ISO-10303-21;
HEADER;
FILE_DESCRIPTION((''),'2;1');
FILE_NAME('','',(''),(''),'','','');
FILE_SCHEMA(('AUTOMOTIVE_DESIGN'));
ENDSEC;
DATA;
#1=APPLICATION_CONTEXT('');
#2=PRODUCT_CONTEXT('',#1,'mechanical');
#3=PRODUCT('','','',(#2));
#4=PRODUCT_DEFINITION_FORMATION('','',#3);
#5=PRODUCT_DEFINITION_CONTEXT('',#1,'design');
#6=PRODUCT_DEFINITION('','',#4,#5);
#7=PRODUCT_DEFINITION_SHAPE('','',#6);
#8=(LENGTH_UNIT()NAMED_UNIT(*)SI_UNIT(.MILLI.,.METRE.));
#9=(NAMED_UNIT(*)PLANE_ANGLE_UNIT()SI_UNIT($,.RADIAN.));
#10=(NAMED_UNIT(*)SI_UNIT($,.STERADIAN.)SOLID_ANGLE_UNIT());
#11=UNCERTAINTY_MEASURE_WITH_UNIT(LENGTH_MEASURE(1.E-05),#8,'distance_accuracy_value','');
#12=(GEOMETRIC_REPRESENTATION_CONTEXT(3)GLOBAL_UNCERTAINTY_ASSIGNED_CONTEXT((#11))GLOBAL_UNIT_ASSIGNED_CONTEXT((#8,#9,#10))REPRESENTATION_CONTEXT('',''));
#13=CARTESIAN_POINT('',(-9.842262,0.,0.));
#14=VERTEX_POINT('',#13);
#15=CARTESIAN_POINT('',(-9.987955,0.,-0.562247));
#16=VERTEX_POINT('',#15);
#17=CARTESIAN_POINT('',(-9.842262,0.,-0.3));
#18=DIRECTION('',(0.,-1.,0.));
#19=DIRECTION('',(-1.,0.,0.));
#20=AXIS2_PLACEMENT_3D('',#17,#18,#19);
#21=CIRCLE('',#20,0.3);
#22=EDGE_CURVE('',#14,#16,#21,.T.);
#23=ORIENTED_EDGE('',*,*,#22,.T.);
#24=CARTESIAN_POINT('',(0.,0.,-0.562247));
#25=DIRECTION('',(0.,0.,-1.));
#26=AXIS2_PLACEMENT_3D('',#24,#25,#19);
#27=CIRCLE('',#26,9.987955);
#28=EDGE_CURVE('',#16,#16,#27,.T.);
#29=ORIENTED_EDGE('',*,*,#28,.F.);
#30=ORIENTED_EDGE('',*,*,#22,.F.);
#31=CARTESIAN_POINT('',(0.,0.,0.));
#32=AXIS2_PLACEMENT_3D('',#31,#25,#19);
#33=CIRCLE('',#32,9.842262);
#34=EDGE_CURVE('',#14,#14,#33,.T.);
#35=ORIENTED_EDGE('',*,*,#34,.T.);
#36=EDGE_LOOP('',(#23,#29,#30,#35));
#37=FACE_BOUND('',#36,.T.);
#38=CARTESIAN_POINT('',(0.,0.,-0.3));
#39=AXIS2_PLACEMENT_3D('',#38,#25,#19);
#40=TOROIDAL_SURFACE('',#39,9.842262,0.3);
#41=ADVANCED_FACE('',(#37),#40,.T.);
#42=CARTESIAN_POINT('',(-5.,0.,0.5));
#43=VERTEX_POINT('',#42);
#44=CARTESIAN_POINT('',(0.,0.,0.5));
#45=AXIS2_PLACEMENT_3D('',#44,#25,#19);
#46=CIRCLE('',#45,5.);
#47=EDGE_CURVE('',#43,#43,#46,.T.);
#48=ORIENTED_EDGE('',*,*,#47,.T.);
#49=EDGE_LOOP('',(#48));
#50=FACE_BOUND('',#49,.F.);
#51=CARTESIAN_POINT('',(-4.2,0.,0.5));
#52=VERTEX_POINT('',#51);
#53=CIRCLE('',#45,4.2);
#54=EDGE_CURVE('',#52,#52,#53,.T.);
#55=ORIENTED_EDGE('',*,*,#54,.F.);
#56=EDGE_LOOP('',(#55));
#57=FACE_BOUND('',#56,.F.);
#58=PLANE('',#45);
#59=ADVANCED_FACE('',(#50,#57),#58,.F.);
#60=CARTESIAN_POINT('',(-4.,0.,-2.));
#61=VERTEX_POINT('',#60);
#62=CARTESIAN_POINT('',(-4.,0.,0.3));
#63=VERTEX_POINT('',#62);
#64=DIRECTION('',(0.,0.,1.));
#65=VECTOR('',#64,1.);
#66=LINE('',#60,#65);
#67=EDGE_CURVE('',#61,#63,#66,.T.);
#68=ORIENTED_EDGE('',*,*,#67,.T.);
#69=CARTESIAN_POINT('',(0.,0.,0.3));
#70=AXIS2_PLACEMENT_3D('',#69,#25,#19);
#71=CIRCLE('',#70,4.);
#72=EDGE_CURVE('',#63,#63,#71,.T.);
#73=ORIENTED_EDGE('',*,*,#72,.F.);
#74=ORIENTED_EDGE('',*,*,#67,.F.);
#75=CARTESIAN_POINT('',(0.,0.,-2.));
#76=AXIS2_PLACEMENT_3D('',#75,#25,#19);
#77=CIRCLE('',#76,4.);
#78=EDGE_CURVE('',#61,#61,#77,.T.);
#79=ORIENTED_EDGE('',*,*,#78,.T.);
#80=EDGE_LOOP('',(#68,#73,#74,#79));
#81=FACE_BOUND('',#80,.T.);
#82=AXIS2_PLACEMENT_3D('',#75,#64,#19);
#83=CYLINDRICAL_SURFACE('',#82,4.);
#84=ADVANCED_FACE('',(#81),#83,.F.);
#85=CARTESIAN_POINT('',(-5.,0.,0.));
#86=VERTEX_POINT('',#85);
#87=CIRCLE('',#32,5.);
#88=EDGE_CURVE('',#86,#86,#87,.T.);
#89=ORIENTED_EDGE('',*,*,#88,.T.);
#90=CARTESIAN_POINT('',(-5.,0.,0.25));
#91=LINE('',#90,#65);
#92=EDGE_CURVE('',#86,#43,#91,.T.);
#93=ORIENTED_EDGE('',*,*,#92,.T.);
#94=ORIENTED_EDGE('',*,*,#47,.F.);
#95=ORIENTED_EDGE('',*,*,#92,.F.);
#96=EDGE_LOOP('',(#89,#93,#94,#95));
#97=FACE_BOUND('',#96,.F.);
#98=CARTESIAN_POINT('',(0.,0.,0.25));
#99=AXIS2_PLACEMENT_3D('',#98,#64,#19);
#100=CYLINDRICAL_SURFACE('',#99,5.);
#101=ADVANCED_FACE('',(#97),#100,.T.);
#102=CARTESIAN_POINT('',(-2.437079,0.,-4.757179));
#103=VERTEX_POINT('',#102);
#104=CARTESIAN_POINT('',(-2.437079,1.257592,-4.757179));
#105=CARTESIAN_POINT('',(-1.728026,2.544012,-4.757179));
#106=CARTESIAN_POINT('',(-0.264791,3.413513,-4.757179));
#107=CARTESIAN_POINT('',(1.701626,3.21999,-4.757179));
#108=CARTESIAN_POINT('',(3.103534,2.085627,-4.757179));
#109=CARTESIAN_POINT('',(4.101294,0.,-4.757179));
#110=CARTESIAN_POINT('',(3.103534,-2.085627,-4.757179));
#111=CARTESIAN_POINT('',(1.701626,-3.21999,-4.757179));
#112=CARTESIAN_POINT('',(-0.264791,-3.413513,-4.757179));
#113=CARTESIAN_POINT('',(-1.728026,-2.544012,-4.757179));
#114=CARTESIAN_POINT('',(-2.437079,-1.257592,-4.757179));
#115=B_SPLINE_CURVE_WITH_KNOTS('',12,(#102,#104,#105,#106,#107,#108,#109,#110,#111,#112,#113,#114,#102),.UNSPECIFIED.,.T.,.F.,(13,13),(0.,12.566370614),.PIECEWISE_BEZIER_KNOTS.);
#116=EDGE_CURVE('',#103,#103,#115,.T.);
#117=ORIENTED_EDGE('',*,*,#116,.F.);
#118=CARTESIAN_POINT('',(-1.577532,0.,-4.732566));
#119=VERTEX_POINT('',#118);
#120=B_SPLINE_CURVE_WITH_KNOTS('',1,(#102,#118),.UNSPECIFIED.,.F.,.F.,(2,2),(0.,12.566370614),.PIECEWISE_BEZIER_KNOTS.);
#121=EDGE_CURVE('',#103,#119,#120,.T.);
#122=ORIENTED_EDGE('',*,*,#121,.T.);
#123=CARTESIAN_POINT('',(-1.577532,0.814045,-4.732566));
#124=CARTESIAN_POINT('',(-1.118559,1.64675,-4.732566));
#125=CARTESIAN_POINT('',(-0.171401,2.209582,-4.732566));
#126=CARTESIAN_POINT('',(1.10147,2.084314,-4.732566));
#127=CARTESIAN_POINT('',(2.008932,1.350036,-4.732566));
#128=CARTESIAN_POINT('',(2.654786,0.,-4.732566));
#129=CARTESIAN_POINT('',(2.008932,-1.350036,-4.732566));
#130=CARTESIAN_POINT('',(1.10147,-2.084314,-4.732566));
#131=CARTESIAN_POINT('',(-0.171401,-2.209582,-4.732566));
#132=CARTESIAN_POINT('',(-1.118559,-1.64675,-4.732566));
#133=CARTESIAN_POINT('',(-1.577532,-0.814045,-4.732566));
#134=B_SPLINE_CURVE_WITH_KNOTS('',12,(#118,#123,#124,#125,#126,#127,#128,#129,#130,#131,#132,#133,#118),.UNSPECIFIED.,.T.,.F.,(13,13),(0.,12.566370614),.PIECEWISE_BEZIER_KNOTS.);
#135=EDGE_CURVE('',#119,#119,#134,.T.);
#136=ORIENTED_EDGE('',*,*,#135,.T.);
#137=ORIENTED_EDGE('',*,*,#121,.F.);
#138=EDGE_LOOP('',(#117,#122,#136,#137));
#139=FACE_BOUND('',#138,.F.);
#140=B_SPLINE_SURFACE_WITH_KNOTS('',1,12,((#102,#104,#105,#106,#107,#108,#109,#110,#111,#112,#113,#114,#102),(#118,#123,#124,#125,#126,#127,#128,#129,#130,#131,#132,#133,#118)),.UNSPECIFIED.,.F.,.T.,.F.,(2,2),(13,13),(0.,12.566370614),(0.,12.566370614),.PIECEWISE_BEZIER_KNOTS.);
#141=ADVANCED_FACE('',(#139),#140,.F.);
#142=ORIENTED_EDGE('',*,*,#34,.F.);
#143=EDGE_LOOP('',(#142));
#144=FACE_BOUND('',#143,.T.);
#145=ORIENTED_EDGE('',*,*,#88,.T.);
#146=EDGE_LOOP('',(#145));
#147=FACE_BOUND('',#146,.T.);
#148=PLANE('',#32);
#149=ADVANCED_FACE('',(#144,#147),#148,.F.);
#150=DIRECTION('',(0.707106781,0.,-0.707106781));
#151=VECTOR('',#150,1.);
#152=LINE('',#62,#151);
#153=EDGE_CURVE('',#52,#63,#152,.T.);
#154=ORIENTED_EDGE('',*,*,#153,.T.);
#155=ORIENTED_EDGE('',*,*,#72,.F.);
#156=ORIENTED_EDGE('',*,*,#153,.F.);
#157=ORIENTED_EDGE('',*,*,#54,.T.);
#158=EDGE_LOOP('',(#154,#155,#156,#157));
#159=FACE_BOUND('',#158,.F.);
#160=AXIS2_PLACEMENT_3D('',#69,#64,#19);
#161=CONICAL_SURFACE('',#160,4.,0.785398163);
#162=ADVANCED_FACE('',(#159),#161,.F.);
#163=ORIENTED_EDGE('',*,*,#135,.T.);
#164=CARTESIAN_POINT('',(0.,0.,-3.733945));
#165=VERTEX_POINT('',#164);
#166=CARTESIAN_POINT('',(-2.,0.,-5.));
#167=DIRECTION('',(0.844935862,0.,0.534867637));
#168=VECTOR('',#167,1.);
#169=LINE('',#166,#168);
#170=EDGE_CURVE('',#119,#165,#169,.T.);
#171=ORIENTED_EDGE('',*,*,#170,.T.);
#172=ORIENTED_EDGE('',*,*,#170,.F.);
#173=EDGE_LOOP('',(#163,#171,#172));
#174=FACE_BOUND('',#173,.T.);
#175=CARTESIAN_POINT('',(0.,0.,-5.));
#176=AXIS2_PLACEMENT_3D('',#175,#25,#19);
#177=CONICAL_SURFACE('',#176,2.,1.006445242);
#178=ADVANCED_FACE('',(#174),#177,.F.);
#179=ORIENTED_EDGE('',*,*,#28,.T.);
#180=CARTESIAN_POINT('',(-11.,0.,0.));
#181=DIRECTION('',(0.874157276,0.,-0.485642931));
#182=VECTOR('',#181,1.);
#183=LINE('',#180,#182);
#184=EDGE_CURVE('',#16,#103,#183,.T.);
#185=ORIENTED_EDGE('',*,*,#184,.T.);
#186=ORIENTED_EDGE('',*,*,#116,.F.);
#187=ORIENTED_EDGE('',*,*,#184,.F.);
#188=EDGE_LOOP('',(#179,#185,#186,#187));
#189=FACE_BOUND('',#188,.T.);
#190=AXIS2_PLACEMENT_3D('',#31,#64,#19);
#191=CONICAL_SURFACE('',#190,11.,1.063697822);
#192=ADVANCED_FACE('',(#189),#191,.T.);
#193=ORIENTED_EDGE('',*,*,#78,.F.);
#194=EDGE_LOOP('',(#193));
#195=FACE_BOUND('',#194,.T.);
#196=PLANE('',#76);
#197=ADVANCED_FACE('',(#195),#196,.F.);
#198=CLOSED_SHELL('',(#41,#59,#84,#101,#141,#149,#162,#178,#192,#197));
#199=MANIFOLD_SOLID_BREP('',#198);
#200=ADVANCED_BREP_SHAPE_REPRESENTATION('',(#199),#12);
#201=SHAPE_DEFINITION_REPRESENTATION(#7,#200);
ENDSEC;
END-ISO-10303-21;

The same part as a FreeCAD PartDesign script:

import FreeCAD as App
import Part
import Sketcher
from FreeCAD import Vector
Q = App.Units.Quantity


def edges_at(feature, points):
    """Names of the edges that pass closest to the given points."""
    edges = feature.Shape.Edges
    near = lambda p: min(range(len(edges)), key=lambda i: edges[i].distToShape(Part.Vertex(*p))[0])
    return sorted({f"Edge{near(p) + 1}" for p in points})


def add_polygon(sketch, points):
    """Adds a closed chain of lines whose ends are joined by coincident constraints."""
    first, n = sketch.GeometryCount, len(points)
    for a, b in zip(points, points[1:] + points[:1]):
        sketch.addGeometry(Part.LineSegment(App.Vector(*a, 0), App.Vector(*b, 0)), False)
    for i in range(n):
        sketch.addConstraint(Sketcher.Constraint("Coincident", first + i, 2, first + (i + 1) % n, 1))

doc = App.newDocument("Part")
params = doc.addObject("Spreadsheet::Sheet", "Params")
for row, (alias, value) in enumerate([
    ("sketch1_width", "1 mm"),
    ("sketch1_width2", "6 mm"),
    ("sketch1_width3", "4 mm"),
    ("sketch1_height", "2.5 mm"),
    ("sketch1_height2", "0.5 mm"),
    ("revolution_angle", "360 deg"),
    ("fillet_radius", "0.3 mm"),
    ("chamfer_size", "0.5 mm"),
    ("chamfer2_size", "0.2 mm"),
], start=1):
    params.set(f"A{row}", alias)
    params.set(f"B{row}", "=" + value)
    params.setAlias(f"B{row}", alias)

body = doc.addObject("PartDesign::Body", "Body")

sketch1 = doc.addObject("Sketcher::SketchObject", "Sketch")
body.addObject(sketch1)
sketch1.AttachmentSupport = (doc.XZ_Plane, [""])
sketch1.MapMode = "FlatFace"
add_polygon(sketch1, [(-4, -2), (-4, 0.5), (-5, 0.5), (-5, 0), (-11, 0), (-2, -5), (0, -3.733945), (0, -2)])
sketch1.addConstraint(Sketcher.Constraint("Vertical", 0))
sketch1.addConstraint(Sketcher.Constraint("Horizontal", 1))
sketch1.addConstraint(Sketcher.Constraint("Vertical", 2))
sketch1.addConstraint(Sketcher.Constraint("Horizontal", 3))
sketch1.addConstraint(Sketcher.Constraint("Vertical", 6))
sketch1.addConstraint(Sketcher.Constraint("Horizontal", 7))
sketch1.addConstraint(Sketcher.Constraint("PointOnObject", 2, 2, -1))
sketch1.addConstraint(Sketcher.Constraint("PointOnObject", 5, 2, -2))
sketch1.addConstraint(Sketcher.Constraint("DistanceX", 1, 2, 1, 1, Q("1 mm")))
sketch1.addConstraint(Sketcher.Constraint("DistanceX", 3, 2, 3, 1, Q("6 mm")))
sketch1.addConstraint(Sketcher.Constraint("DistanceX", 7, 2, 7, 1, Q("4 mm")))
sketch1.addConstraint(Sketcher.Constraint("DistanceY", 0, 1, 0, 2, Q("2.5 mm")))
sketch1.addConstraint(Sketcher.Constraint("DistanceY", 2, 2, 2, 1, Q("0.5 mm")))
sketch1.addConstraint(Sketcher.Constraint("DistanceX", 4, 2, -1, 1, Q("2 mm")))
sketch1.addConstraint(Sketcher.Constraint("DistanceY", 4, 2, -1, 1, Q("5 mm")))
sketch1.addConstraint(Sketcher.Constraint("DistanceY", 6, 1, 6, 2, Q("1.733945 mm")))
sketch1.setExpression("Constraints[16]", "Params.sketch1_width")
sketch1.setExpression("Constraints[17]", "Params.sketch1_width2")
sketch1.setExpression("Constraints[18]", "Params.sketch1_width3")
sketch1.setExpression("Constraints[19]", "Params.sketch1_height")
sketch1.setExpression("Constraints[20]", "Params.sketch1_height2")
revolution = doc.addObject("PartDesign::Revolution", "Revolution")
body.addObject(revolution)
revolution.Profile = sketch1
revolution.ReferenceAxis = (sketch1, ["V_Axis"])
revolution.setExpression("Angle", "Params.revolution_angle")
doc.recompute()

fillet = doc.addObject("PartDesign::Fillet", "Fillet")
body.addObject(fillet)
fillet.Base = (revolution, edges_at(revolution, [(11, 0, 0)]))
fillet.setExpression("Radius", "Params.fillet_radius")
doc.recompute()

chamfer = doc.addObject("PartDesign::Chamfer", "Chamfer")
body.addObject(chamfer)
chamfer.Base = (fillet, edges_at(fillet, [(2, 0, -5)]))
chamfer.setExpression("Size", "Params.chamfer_size")
doc.recompute()

chamfer2 = doc.addObject("PartDesign::Chamfer", "Chamfer001")
body.addObject(chamfer2)
chamfer2.Base = (chamfer, edges_at(chamfer, [(4, 0, 0.5)]))
chamfer2.setExpression("Size", "Params.chamfer2_size")

doc.recompute()
